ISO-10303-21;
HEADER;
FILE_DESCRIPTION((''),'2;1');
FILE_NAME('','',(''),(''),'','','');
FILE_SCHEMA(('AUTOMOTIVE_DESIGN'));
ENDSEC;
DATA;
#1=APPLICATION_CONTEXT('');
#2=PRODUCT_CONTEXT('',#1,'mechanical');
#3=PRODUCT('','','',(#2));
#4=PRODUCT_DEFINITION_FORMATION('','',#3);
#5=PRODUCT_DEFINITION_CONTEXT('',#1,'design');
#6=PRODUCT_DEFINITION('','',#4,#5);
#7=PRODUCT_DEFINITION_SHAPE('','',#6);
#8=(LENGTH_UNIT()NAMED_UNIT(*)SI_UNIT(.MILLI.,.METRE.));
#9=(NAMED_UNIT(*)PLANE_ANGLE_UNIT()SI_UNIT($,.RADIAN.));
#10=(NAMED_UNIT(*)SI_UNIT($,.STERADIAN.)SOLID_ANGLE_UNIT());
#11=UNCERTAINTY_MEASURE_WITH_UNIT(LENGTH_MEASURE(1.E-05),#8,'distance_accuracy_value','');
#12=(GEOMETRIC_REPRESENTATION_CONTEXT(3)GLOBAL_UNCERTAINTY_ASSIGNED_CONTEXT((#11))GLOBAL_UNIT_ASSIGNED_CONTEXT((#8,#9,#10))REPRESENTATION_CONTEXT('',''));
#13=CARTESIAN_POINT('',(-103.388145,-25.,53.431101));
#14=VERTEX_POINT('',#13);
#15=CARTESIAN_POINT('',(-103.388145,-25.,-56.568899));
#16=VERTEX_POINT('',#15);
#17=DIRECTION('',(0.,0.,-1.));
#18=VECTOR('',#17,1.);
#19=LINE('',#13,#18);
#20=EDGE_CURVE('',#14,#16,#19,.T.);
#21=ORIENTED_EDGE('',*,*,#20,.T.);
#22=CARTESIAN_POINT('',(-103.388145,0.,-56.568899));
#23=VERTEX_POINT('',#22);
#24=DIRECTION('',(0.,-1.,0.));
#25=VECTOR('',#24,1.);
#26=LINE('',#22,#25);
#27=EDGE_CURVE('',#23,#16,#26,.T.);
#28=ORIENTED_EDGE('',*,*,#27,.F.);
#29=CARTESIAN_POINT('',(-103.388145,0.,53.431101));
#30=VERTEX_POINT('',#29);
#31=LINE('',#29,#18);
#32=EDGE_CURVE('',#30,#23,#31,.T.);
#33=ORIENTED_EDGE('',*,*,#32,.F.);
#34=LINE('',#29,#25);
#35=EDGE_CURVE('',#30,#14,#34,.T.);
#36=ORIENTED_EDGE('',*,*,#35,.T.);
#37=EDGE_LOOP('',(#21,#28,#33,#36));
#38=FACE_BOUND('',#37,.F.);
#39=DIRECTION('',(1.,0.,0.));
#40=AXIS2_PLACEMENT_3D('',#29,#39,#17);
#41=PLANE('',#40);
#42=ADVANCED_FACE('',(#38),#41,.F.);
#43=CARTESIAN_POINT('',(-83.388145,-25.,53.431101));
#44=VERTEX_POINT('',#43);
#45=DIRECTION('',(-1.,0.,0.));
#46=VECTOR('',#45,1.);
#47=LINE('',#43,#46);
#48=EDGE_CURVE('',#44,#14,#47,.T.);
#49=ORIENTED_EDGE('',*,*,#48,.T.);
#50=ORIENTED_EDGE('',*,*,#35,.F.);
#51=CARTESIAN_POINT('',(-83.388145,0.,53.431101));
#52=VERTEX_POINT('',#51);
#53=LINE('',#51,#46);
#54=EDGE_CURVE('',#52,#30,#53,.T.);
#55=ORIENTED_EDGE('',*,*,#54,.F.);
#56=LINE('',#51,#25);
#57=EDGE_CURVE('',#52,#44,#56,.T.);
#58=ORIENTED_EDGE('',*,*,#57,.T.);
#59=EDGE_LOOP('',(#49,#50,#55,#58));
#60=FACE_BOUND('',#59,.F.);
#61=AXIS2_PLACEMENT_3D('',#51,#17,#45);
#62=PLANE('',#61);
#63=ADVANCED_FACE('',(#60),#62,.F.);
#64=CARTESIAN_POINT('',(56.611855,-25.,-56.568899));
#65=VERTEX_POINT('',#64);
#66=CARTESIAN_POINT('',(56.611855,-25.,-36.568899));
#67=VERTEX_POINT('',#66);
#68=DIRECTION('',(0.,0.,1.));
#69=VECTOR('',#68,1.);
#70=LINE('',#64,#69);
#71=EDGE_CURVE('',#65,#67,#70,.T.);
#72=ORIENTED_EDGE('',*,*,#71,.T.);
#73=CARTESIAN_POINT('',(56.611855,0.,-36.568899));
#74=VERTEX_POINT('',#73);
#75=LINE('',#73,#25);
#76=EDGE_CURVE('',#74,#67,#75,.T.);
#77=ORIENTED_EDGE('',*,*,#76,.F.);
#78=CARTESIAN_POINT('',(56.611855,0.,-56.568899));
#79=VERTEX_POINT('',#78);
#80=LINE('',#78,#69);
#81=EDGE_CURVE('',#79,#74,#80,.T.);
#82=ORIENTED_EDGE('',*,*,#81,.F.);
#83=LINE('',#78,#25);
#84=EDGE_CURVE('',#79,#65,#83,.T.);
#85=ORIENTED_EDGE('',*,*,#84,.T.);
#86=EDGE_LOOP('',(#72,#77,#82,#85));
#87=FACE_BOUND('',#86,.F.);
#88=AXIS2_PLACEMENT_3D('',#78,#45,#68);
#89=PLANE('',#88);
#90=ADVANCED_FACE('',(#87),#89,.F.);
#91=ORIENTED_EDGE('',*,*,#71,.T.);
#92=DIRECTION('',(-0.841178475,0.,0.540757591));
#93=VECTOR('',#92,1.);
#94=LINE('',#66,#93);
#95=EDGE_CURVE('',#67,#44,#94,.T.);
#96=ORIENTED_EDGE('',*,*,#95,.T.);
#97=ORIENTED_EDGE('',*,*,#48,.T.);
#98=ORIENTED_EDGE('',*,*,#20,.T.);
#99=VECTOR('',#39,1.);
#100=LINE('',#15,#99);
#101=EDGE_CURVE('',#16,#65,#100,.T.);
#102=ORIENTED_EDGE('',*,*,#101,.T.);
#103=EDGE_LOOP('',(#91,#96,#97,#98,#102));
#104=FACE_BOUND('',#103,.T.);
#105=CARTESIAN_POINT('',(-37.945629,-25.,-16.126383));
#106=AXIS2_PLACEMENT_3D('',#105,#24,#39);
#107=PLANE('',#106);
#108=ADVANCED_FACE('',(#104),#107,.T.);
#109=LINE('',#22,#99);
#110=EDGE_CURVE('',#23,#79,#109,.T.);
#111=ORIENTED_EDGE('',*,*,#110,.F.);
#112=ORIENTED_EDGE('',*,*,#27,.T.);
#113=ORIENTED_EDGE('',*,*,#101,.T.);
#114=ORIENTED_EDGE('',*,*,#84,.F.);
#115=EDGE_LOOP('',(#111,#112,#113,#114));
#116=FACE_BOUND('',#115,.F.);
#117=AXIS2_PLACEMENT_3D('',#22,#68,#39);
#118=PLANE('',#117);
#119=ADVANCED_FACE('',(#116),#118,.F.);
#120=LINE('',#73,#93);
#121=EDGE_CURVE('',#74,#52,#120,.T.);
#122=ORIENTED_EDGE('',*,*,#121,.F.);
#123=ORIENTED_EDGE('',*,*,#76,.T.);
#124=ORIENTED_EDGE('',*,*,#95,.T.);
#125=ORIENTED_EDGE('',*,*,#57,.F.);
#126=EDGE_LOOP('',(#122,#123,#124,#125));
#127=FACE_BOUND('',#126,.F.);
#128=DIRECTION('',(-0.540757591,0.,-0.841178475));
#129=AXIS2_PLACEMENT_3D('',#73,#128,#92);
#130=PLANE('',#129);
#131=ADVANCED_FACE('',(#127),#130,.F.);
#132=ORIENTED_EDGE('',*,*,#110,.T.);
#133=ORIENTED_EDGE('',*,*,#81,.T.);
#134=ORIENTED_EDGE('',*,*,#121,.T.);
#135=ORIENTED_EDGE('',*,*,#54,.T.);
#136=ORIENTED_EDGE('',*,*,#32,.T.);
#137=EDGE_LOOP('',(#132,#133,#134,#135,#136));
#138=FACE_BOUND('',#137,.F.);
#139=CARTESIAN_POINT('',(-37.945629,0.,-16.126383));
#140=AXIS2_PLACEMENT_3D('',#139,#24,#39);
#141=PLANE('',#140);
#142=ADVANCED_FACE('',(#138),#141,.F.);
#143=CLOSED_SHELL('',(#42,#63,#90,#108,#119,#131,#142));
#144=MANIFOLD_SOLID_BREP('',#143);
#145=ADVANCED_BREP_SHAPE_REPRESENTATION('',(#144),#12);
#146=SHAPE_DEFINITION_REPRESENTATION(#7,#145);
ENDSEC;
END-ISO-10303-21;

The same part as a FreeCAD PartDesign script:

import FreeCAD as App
import Part
import Sketcher
from FreeCAD import Vector
Q = App.Units.Quantity

doc = App.newDocument("Part")
body = doc.addObject("PartDesign::Body", "Body")

sketch1 = doc.addObject("Sketcher::SketchObject", "Sketch")
body.addObject(sketch1)
sketch1.AttachmentSupport = (doc.XZ_Plane, [""])
sketch1.MapMode = "FlatFace"
sketch1.addGeometry(Part.LineSegment(Vector(-83.388145, 53.431101, 0), Vector(-103.388145, 53.431101, 0)), False)
sketch1.addGeometry(Part.LineSegment(Vector(-103.388145, 53.431101, 0), Vector(-103.388145, -56.568899, 0)), False)
sketch1.addGeometry(Part.LineSegment(Vector(-103.388145, -56.568899, 0), Vector(56.611855, -56.568899, 0)), False)
sketch1.addGeometry(Part.LineSegment(Vector(56.611855, -56.568899, 0), Vector(56.611855, -36.568899, 0)), False)
sketch1.addGeometry(Part.LineSegment(Vector(56.611855, -36.568899, 0), Vector(-83.388145, 53.431101, 0)), False)
sketch1.addConstraint(Sketcher.Constraint("Coincident", 0, 2, 1, 1))
sketch1.addConstraint(Sketcher.Constraint("Coincident", 1, 2, 2, 1))
sketch1.addConstraint(Sketcher.Constraint("Coincident", 2, 2, 3, 1))
sketch1.addConstraint(Sketcher.Constraint("Coincident", 3, 2, 4, 1))
sketch1.addConstraint(Sketcher.Constraint("Coincident", 4, 2, 0, 1))
sketch1.addConstraint(Sketcher.Constraint("Horizontal", 0))
sketch1.addConstraint(Sketcher.Constraint("Vertical", 1))
sketch1.addConstraint(Sketcher.Constraint("Horizontal", 2))
sketch1.addConstraint(Sketcher.Constraint("Vertical", 3))
sketch1.addConstraint(Sketcher.Constraint("Equal", 0, 3))
sketch1.addConstraint(Sketcher.Constraint("DistanceX", 0, 2, 0, 1, Q("20 mm")))
sketch1.addConstraint(Sketcher.Constraint("DistanceX", 2, 1, 2, 2, Q("160 mm")))
sketch1.addConstraint(Sketcher.Constraint("DistanceY", 1, 2, 1, 1, Q("110 mm")))
sketch1.addConstraint(Sketcher.Constraint("DistanceY", -1, 1, 0, 2, Q("53.431101 mm")))
sketch1.addConstraint(Sketcher.Constraint("DistanceX", 0, 2, -1, 1, Q("103.388145 mm")))
pad1 = doc.addObject("PartDesign::Pad", "Pad")
body.addObject(pad1)
pad1.Profile = sketch1
pad1.Length = 25

sketch2 = doc.addObject("Sketcher::SketchObject", "Sketch001")
body.addObject(sketch2)
sketch2.AttachmentSupport = (doc.XZ_Plane, [""])
sketch2.MapMode = "FlatFace"
sketch2.addGeometry(Part.LineSegment(Vector(-83.388145, 53.431101, 0), Vector(-103.388145, 53.431101, 0)), False)
sketch2.addGeometry(Part.LineSegment(Vector(-103.388145, 53.431101, 0), Vector(-103.388145, -56.568899, 0)), False)
sketch2.addGeometry(Part.LineSegment(Vector(-103.388145, -56.568899, 0), Vector(56.611855, -56.568899, 0)), False)
sketch2.addGeometry(Part.LineSegment(Vector(56.611855, -56.568899, 0), Vector(56.611855, -36.568899, 0)), False)
sketch2.addGeometry(Part.LineSegment(Vector(56.611855, -36.568899, 0), Vector(-83.388145, 53.431101, 0)), False)
sketch2.addConstraint(Sketcher.Constraint("Coincident", 0, 2, 1, 1))
sketch2.addConstraint(Sketcher.Constraint("Coincident", 1, 2, 2, 1))
sketch2.addConstraint(Sketcher.Constraint("Coincident", 2, 2, 3, 1))
sketch2.addConstraint(Sketcher.Constraint("Coincident", 3, 2, 4, 1))
sketch2.addConstraint(Sketcher.Constraint("Coincident", 4, 2, 0, 1))
sketch2.addConstraint(Sketcher.Constraint("Horizontal", 0))
sketch2.addConstraint(Sketcher.Constraint("Vertical", 1))
sketch2.addConstraint(Sketcher.Constraint("Horizontal", 2))
sketch2.addConstraint(Sketcher.Constraint("Vertical", 3))
sketch2.addConstraint(Sketcher.Constraint("Equal", 0, 3))
sketch2.addConstraint(Sketcher.Constraint("DistanceX", 0, 2, 0, 1, Q("20 mm")))
sketch2.addConstraint(Sketcher.Constraint("DistanceX", 2, 1, 2, 2, Q("160 mm")))
sketch2.addConstraint(Sketcher.Constraint("DistanceY", 1, 2, 1, 1, Q("110 mm")))
sketch2.addConstraint(Sketcher.Constraint("DistanceY", -1, 1, 0, 2, Q("53.431101 mm")))
sketch2.addConstraint(Sketcher.Constraint("DistanceX", 0, 2, -1, 1, Q("103.388145 mm")))
pad2 = doc.addObject("PartDesign::Pad", "Pad001")
body.addObject(pad2)
pad2.Profile = sketch2
pad2.Length = 25

sketch3 = doc.addObject("Sketcher::SketchObject", "Sketch002")
body.addObject(sketch3)
sketch3.AttachmentSupport = (doc.XZ_Plane, [""])
sketch3.MapMode = "FlatFace"
sketch3.addGeometry(Part.LineSegment(Vector(-83.388145, 53.431101, 0), Vector(-103.388145, 53.431101, 0)), False)
sketch3.addGeometry(Part.LineSegment(Vector(-103.388145, 53.431101, 0), Vector(-103.388145, -56.568899, 0)), False)
sketch3.addGeometry(Part.LineSegment(Vector(-103.388145, -56.568899, 0), Vector(56.611855, -56.568899, 0)), False)
sketch3.addGeometry(Part.LineSegment(Vector(56.611855, -56.568899, 0), Vector(56.611855, -36.568899, 0)), False)
sketch3.addGeometry(Part.LineSegment(Vector(56.611855, -36.568899, 0), Vector(-83.388145, 53.431101, 0)), False)
sketch3.addConstraint(Sketcher.Constraint("Coincident", 0, 2, 1, 1))
sketch3.addConstraint(Sketcher.Constraint("Coincident", 1, 2, 2, 1))
sketch3.addConstraint(Sketcher.Constraint("Coincident", 2, 2, 3, 1))
sketch3.addConstraint(Sketcher.Constraint("Coincident", 3, 2, 4, 1))
sketch3.addConstraint(Sketcher.Constraint("Coincident", 4, 2, 0, 1))
sketch3.addConstraint(Sketcher.Constraint("Horizontal", 0))
sketch3.addConstraint(Sketcher.Constraint("Vertical", 1))
sketch3.addConstraint(Sketcher.Constraint("Horizontal", 2))
sketch3.addConstraint(Sketcher.Constraint("Vertical", 3))
sketch3.addConstraint(Sketcher.Constraint("Equal", 0, 3))
sketch3.addConstraint(Sketcher.Constraint("DistanceX", 0, 2, 0, 1, Q("20 mm")))
sketch3.addConstraint(Sketcher.Constraint("DistanceX", 2, 1, 2, 2, Q("160 mm")))
sketch3.addConstraint(Sketcher.Constraint("DistanceY", 1, 2, 1, 1, Q("110 mm")))
sketch3.addConstraint(Sketcher.Constraint("DistanceY", -1, 1, 0, 2, Q("53.431101 mm")))
sketch3.addConstraint(Sketcher.Constraint("DistanceX", 0, 2, -1, 1, Q("103.388145 mm")))
pad3 = doc.addObject("PartDesign::Pad", "Pad002")
body.addObject(pad3)
pad3.Profile = sketch3
pad3.Length = 25

sketch4 = doc.addObject("Sketcher::SketchObject", "Sketch003")
body.addObject(sketch4)
sketch4.AttachmentSupport = (doc.XZ_Plane, [""])
sketch4.MapMode = "FlatFace"
sketch4.addGeometry(Part.LineSegment(Vector(-83.388145, 53.431101, 0), Vector(-103.388145, 53.431101, 0)), False)
sketch4.addGeometry(Part.LineSegment(Vector(-103.388145, 53.431101, 0), Vector(-103.388145, -56.568899, 0)), False)
sketch4.addGeometry(Part.LineSegment(Vector(-103.388145, -56.568899, 0), Vector(56.611855, -56.568899, 0)), False)
sketch4.addGeometry(Part.LineSegment(Vector(56.611855, -56.568899, 0), Vector(56.611855, -36.568899, 0)), False)
sketch4.addGeometry(Part.LineSegment(Vector(56.611855, -36.568899, 0), Vector(-83.388145, 53.431101, 0)), False)
sketch4.addConstraint(Sketcher.Constraint("Coincident", 0, 2, 1, 1))
sketch4.addConstraint(Sketcher.Constraint("Coincident", 1, 2, 2, 1))
sketch4.addConstraint(Sketcher.Constraint("Coincident", 2, 2, 3, 1))
sketch4.addConstraint(Sketcher.Constraint("Coincident", 3, 2, 4, 1))
sketch4.addConstraint(Sketcher.Constraint("Coincident", 4, 2, 0, 1))
sketch4.addConstraint(Sketcher.Constraint("Horizontal", 0))
sketch4.addConstraint(Sketcher.Constraint("Vertical", 1))
sketch4.addConstraint(Sketcher.Constraint("Horizontal", 2))
sketch4.addConstraint(Sketcher.Constraint("Vertical", 3))
sketch4.addConstraint(Sketcher.Constraint("Equal", 0, 3))
sketch4.addConstraint(Sketcher.Constraint("DistanceX", 0, 2, 0, 1, Q("20 mm")))
sketch4.addConstraint(Sketcher.Constraint("DistanceX", 2, 1, 2, 2, Q("160 mm")))
sketch4.addConstraint(Sketcher.Constraint("DistanceY", 1, 2, 1, 1, Q("110 mm")))
sketch4.addConstraint(Sketcher.Constraint("DistanceY", -1, 1, 0, 2, Q("53.431101 mm")))
sketch4.addConstraint(Sketcher.Constraint("DistanceX", 0, 2, -1, 1, Q("103.388145 mm")))
pad4 = doc.addObject("PartDesign::Pad", "Pad003")
body.addObject(pad4)
pad4.Profile = sketch4
pad4.Length = 25

sketch5 = doc.addObject("Sketcher::SketchObject", "Sketch004")
body.addObject(sketch5)
sketch5.AttachmentSupport = (doc.XZ_Plane, [""])
sketch5.MapMode = "FlatFace"
sketch5.addGeometry(Part.LineSegment(Vector(-83.388145, 53.431101, 0), Vector(-103.388145, 53.431101, 0)), False)
sketch5.addGeometry(Part.LineSegment(Vector(-103.388145, 53.431101, 0), Vector(-103.388145, -56.568899, 0)), False)
sketch5.addGeometry(Part.LineSegment(Vector(-103.388145, -56.568899, 0), Vector(56.611855, -56.568899, 0)), False)
sketch5.addGeometry(Part.LineSegment(Vector(56.611855, -56.568899, 0), Vector(56.611855, -36.568899, 0)), False)
sketch5.addGeometry(Part.LineSegment(Vector(56.611855, -36.568899, 0), Vector(-83.388145, 53.431101, 0)), False)
sketch5.addConstraint(Sketcher.Constraint("Coincident", 0, 2, 1, 1))
sketch5.addConstraint(Sketcher.Constraint("Coincident", 1, 2, 2, 1))
sketch5.addConstraint(Sketcher.Constraint("Coincident", 2, 2, 3, 1))
sketch5.addConstraint(Sketcher.Constraint("Coincident", 3, 2, 4, 1))
sketch5.addConstraint(Sketcher.Constraint("Coincident", 4, 2, 0, 1))
sketch5.addConstraint(Sketcher.Constraint("Horizontal", 0))
sketch5.addConstraint(Sketcher.Constraint("Vertical", 1))
sketch5.addConstraint(Sketcher.Constraint("Horizontal", 2))
sketch5.addConstraint(Sketcher.Constraint("Vertical", 3))
sketch5.addConstraint(Sketcher.Constraint("Equal", 0, 3))
sketch5.addConstraint(Sketcher.Constraint("DistanceX", 0, 2, 0, 1, Q("20 mm")))
sketch5.addConstraint(Sketcher.Constraint("DistanceX", 2, 1, 2, 2, Q("160 mm")))
sketch5.addConstraint(Sketcher.Constraint("DistanceY", 1, 2, 1, 1, Q("110 mm")))
sketch5.addConstraint(Sketcher.Constraint("DistanceY", -1, 1, 0, 2, Q("53.431101 mm")))
sketch5.addConstraint(Sketcher.Constraint("DistanceX", 0, 2, -1, 1, Q("103.388145 mm")))
pad5 = doc.addObject("PartDesign::Pad", "Pad004")
body.addObject(pad5)
pad5.Profile = sketch5
pad5.Length = 25

doc.recompute()
